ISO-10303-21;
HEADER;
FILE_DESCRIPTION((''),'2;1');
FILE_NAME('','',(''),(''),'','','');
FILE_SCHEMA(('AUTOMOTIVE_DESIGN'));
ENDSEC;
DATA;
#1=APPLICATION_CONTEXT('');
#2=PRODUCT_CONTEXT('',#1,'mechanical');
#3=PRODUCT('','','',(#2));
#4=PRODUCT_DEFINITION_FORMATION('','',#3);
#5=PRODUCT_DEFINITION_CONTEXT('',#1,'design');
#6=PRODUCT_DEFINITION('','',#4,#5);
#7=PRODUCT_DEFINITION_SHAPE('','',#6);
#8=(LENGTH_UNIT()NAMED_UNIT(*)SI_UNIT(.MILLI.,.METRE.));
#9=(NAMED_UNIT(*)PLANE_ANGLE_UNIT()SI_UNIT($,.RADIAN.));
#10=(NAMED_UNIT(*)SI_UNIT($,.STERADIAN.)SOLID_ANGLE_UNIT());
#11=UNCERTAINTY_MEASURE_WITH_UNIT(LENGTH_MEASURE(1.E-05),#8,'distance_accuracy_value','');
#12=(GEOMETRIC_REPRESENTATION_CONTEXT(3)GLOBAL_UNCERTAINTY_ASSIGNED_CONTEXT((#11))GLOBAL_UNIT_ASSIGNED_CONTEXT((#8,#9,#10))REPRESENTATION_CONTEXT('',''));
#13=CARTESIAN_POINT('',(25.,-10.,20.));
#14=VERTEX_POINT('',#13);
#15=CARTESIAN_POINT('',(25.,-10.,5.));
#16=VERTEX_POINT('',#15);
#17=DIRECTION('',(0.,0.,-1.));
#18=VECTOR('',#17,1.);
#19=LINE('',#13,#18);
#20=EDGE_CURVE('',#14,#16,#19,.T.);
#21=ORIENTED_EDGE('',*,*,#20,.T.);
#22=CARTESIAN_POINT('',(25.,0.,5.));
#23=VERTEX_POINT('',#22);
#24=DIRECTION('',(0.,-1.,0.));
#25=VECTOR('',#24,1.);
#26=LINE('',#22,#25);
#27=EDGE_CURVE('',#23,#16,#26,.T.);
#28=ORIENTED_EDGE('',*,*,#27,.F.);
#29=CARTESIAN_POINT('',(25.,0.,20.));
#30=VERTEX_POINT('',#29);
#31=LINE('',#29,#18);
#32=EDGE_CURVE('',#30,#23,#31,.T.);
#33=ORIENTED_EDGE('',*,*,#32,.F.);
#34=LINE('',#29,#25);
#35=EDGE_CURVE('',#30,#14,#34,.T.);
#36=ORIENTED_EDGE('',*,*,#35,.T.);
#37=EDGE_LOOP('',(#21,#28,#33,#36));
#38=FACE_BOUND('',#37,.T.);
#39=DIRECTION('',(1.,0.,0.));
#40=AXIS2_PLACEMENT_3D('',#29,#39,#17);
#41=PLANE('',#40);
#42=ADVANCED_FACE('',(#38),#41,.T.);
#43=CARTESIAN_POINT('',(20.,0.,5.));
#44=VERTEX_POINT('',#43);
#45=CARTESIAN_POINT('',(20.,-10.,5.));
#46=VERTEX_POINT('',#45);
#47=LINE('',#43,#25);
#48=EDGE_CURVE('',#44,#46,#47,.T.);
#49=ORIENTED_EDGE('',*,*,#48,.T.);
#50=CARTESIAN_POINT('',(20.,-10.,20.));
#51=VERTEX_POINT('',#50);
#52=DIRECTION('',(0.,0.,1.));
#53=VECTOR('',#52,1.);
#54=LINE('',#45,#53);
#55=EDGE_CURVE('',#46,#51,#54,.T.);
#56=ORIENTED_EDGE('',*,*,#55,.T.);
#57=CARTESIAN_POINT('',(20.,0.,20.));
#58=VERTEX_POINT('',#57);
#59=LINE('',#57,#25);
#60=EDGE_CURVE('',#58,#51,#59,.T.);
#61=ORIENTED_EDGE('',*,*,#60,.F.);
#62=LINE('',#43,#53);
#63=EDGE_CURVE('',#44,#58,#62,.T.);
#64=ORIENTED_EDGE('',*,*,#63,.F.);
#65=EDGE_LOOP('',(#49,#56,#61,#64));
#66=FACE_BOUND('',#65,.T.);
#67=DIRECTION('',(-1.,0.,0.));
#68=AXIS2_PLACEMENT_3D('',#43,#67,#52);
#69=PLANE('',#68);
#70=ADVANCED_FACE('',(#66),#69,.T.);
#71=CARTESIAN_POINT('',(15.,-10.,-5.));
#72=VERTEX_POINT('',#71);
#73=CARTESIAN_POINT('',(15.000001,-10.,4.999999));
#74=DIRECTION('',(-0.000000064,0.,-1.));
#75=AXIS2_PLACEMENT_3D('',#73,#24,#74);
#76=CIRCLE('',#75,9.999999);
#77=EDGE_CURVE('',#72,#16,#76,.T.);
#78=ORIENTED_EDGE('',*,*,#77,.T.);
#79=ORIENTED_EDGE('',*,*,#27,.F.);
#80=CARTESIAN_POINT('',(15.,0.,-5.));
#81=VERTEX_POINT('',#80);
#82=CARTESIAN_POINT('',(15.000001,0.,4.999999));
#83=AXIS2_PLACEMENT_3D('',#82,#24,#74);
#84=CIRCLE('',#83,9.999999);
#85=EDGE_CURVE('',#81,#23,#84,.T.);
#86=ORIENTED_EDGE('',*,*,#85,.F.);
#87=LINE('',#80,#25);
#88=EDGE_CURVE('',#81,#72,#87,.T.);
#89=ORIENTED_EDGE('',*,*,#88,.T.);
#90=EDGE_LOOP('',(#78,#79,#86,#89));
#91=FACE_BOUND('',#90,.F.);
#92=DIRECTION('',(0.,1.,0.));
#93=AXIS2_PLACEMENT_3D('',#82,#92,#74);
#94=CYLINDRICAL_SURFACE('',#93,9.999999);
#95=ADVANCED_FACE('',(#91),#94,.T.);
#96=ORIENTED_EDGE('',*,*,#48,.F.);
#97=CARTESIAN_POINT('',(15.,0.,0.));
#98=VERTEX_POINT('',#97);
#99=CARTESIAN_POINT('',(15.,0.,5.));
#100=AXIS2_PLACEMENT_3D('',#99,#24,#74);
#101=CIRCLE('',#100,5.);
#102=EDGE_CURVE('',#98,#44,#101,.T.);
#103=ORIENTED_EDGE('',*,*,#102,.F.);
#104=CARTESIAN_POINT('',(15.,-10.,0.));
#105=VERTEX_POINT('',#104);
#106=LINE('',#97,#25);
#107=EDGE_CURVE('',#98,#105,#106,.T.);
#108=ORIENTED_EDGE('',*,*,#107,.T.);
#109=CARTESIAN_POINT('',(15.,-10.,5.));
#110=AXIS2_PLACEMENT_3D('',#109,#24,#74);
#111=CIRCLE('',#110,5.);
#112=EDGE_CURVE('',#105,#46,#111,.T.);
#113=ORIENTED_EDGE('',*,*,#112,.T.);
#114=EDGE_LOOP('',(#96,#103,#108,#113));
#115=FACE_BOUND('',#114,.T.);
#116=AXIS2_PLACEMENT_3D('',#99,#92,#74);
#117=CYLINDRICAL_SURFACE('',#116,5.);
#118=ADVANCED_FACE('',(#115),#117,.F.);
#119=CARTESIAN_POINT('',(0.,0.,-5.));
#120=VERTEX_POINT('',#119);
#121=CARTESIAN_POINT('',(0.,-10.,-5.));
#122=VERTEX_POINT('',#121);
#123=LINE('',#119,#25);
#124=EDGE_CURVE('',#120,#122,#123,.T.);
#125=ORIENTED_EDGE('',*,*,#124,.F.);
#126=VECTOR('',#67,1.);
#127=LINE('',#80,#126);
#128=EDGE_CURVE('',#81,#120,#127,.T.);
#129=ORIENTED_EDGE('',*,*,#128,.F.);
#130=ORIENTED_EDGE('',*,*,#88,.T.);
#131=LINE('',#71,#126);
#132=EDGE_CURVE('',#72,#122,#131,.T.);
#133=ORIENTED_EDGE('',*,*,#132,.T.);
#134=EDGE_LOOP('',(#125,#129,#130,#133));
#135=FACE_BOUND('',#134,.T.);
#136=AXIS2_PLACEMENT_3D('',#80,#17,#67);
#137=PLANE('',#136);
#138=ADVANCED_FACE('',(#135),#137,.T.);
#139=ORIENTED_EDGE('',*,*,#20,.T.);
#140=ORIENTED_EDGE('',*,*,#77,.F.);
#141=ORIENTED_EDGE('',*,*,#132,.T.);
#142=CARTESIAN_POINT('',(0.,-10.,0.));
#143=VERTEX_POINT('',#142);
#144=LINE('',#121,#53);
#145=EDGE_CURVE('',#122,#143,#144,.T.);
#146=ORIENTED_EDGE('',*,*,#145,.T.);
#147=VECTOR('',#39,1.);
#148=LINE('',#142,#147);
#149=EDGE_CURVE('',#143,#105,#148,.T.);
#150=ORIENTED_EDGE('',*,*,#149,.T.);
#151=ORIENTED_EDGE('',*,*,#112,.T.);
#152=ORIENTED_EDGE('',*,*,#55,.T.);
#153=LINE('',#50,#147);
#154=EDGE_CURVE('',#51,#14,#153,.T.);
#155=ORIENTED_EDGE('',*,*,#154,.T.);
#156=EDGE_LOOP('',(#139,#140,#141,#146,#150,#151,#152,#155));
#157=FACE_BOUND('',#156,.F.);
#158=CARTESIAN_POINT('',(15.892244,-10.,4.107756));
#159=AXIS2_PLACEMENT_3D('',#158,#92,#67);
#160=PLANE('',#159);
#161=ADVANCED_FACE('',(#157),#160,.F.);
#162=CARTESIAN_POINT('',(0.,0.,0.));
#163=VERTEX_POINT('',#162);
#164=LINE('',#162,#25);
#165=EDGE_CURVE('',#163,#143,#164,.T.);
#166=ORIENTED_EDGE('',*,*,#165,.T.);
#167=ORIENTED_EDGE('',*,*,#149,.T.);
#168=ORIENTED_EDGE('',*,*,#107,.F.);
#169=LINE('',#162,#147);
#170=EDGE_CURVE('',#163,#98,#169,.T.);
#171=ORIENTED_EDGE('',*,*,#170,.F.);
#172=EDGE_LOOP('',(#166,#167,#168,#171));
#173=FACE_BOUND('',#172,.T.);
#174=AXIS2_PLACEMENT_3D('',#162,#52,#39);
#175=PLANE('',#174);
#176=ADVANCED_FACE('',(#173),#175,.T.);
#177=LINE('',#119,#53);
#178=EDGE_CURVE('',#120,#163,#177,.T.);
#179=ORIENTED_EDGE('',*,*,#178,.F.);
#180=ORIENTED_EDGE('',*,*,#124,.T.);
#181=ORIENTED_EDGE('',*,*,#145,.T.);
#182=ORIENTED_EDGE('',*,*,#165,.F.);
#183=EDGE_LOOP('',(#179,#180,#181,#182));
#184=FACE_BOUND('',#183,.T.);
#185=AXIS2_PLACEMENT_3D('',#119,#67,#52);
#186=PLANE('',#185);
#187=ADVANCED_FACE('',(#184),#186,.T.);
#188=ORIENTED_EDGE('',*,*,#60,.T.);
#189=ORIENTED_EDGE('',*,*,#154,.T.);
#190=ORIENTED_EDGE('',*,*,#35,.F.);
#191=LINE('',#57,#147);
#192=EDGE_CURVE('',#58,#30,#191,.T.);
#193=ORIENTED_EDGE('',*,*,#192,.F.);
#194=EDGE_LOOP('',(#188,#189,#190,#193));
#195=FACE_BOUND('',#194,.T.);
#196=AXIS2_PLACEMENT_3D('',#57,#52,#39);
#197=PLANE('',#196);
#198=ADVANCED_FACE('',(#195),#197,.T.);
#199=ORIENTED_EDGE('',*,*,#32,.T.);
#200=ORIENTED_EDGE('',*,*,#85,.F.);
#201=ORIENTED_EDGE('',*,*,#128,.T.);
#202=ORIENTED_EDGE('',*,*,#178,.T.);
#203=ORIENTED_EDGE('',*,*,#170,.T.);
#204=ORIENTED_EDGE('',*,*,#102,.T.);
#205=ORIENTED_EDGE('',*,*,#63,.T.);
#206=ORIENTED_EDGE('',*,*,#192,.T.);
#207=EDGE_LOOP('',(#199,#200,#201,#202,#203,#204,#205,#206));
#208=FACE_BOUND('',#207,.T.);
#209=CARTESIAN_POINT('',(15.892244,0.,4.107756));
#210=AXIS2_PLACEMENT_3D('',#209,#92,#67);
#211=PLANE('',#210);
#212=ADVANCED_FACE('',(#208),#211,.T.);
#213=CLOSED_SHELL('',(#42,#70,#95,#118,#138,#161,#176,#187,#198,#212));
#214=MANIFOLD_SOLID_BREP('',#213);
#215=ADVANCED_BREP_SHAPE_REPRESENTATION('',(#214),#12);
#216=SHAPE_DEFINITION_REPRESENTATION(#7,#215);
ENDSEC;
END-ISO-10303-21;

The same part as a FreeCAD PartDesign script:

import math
import FreeCAD as App
import Part
import Sketcher
from FreeCAD import Vector
Q = App.Units.Quantity

doc = App.newDocument("Part")
body = doc.addObject("PartDesign::Body", "Body")

# Sketch on XZ plane
sketch1 = body.newObject("Sketcher::SketchObject", "Sketch")
sketch1.AttachmentSupport = (doc.getObject("XZ_Plane"), [""])
sketch1.MapMode = "FlatFace"
sketch1.addGeometry([
    Part.LineSegment(Vector(15, 0, 0), Vector(0, 0, 0)),  # 0
    Part.LineSegment(Vector(0, 0, 0), Vector(0, -5, 0)),  # 1
    Part.LineSegment(Vector(0, -5, 0), Vector(15, -5, 0)),  # 2
    Part.ArcOfCircle(Part.Circle(Vector(15, 5, 0), Vector(0, 0, 1), 10), math.radians(-90), math.radians(0)),  # 3
    Part.LineSegment(Vector(25, 5, 0), Vector(25, 20, 0)),  # 4
    Part.LineSegment(Vector(25, 20, 0), Vector(20, 20, 0)),  # 5
    Part.LineSegment(Vector(20, 20, 0), Vector(20, 5, 0)),  # 6
    Part.ArcOfCircle(Part.Circle(Vector(15, 5, 0), Vector(0, 0, 1), 5), math.radians(-90), math.radians(0)),  # 7
], False)
sketch1.addConstraint([
    Sketcher.Constraint("Coincident", 0, 2, 1, 1),
    Sketcher.Constraint("Coincident", 1, 2, 2, 1),
    Sketcher.Constraint("Tangent", 2, 2, 3, 1),
    Sketcher.Constraint("Tangent", 3, 2, 4, 1),
    Sketcher.Constraint("Coincident", 4, 2, 5, 1),
    Sketcher.Constraint("Coincident", 5, 2, 6, 1),
    Sketcher.Constraint("Tangent", 6, 2, 7, 2),
    Sketcher.Constraint("Tangent", 7, 1, 0, 1),
    Sketcher.Constraint("Horizontal", 0),
    Sketcher.Constraint("Vertical", 1),
    Sketcher.Constraint("Horizontal", 2),
    Sketcher.Constraint("Vertical", 4),
    Sketcher.Constraint("Horizontal", 5),
    Sketcher.Constraint("Vertical", 6),
    Sketcher.Constraint("Coincident", 0, 2, -1, 1),
    Sketcher.Constraint("Coincident", 7, 3, 3, 3),
    Sketcher.Constraint("Equal", 2, 4),
    Sketcher.Constraint("Radius", 3, Q("9.999999 mm")),
    Sketcher.Constraint("Radius", 7, Q("5 mm")),
    Sketcher.Constraint("DistanceX", 0, 2, 0, 1, Q("15 mm")),
])
pad1 = body.newObject("PartDesign::Pad", "Pad")
pad1.Profile = sketch1
pad1.Length = 10

doc.recompute()
